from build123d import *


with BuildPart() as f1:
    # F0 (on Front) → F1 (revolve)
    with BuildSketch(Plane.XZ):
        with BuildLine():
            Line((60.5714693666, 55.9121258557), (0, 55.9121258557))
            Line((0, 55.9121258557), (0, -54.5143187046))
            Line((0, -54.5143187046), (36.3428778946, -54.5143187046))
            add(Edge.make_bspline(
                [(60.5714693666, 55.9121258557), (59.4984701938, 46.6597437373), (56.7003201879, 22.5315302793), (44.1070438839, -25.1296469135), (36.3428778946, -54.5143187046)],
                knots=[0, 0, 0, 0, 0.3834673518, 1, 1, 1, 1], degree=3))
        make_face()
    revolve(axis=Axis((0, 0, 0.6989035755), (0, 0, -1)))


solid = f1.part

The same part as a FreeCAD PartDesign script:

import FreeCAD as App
import Part
import Sketcher

V = App.Vector

doc = App.newDocument("Part")
body = doc.addObject("PartDesign::Body", "Body")

# Sketch on XZ plane
sketch1 = doc.addObject("Sketcher::SketchObject", "Sketch")
body.addObject(sketch1)
sketch1.AttachmentSupport = (doc.XZ_Plane, [""])
sketch1.MapMode = "FlatFace"
sketch1.addGeometry(Part.LineSegment(V(60.571469, 55.912126, 0), V(0, 55.912126, 0)), False)
sketch1.addGeometry(Part.LineSegment(V(0, 55.912126, 0), V(0, -54.514319, 0)), False)
sketch1.addGeometry(Part.LineSegment(V(0, -54.514319, 0), V(36.342878, -54.514319, 0)), False)
sketch1.addGeometry(Part.BSplineCurve([V(60.571469, 55.912126, 0), V(59.49847, 46.659744, 0), V(56.70032, 22.53153, 0), V(44.107044, -25.129647, 0), V(36.342878, -54.514319, 0)], [4, 1, 4], [0, 0.383467352, 1], False, 3, [1, 1, 1, 1, 1], False), False)
sketch1.addConstraint(Sketcher.Constraint("Block", 3))
sketch1.addConstraint(Sketcher.Constraint("Coincident", 0, 2, 1, 1))
sketch1.addConstraint(Sketcher.Constraint("Coincident", 1, 2, 2, 1))
sketch1.addConstraint(Sketcher.Constraint("Coincident", 2, 2, 3, 2))
sketch1.addConstraint(Sketcher.Constraint("Coincident", 3, 1, 0, 1))
sketch1.addConstraint(Sketcher.Constraint("Horizontal", 0))
sketch1.addConstraint(Sketcher.Constraint("Vertical", 1))
sketch1.addConstraint(Sketcher.Constraint("Horizontal", 2))
sketch1.addConstraint(Sketcher.Constraint("PointOnObject", 0, 2, -2))
revolution = doc.addObject("PartDesign::Revolution", "Revolution")
body.addObject(revolution)
revolution.Profile = sketch1
revolution.ReferenceAxis = (sketch1, ["V_Axis"])
revolution.Angle = 360

doc.recompute()
